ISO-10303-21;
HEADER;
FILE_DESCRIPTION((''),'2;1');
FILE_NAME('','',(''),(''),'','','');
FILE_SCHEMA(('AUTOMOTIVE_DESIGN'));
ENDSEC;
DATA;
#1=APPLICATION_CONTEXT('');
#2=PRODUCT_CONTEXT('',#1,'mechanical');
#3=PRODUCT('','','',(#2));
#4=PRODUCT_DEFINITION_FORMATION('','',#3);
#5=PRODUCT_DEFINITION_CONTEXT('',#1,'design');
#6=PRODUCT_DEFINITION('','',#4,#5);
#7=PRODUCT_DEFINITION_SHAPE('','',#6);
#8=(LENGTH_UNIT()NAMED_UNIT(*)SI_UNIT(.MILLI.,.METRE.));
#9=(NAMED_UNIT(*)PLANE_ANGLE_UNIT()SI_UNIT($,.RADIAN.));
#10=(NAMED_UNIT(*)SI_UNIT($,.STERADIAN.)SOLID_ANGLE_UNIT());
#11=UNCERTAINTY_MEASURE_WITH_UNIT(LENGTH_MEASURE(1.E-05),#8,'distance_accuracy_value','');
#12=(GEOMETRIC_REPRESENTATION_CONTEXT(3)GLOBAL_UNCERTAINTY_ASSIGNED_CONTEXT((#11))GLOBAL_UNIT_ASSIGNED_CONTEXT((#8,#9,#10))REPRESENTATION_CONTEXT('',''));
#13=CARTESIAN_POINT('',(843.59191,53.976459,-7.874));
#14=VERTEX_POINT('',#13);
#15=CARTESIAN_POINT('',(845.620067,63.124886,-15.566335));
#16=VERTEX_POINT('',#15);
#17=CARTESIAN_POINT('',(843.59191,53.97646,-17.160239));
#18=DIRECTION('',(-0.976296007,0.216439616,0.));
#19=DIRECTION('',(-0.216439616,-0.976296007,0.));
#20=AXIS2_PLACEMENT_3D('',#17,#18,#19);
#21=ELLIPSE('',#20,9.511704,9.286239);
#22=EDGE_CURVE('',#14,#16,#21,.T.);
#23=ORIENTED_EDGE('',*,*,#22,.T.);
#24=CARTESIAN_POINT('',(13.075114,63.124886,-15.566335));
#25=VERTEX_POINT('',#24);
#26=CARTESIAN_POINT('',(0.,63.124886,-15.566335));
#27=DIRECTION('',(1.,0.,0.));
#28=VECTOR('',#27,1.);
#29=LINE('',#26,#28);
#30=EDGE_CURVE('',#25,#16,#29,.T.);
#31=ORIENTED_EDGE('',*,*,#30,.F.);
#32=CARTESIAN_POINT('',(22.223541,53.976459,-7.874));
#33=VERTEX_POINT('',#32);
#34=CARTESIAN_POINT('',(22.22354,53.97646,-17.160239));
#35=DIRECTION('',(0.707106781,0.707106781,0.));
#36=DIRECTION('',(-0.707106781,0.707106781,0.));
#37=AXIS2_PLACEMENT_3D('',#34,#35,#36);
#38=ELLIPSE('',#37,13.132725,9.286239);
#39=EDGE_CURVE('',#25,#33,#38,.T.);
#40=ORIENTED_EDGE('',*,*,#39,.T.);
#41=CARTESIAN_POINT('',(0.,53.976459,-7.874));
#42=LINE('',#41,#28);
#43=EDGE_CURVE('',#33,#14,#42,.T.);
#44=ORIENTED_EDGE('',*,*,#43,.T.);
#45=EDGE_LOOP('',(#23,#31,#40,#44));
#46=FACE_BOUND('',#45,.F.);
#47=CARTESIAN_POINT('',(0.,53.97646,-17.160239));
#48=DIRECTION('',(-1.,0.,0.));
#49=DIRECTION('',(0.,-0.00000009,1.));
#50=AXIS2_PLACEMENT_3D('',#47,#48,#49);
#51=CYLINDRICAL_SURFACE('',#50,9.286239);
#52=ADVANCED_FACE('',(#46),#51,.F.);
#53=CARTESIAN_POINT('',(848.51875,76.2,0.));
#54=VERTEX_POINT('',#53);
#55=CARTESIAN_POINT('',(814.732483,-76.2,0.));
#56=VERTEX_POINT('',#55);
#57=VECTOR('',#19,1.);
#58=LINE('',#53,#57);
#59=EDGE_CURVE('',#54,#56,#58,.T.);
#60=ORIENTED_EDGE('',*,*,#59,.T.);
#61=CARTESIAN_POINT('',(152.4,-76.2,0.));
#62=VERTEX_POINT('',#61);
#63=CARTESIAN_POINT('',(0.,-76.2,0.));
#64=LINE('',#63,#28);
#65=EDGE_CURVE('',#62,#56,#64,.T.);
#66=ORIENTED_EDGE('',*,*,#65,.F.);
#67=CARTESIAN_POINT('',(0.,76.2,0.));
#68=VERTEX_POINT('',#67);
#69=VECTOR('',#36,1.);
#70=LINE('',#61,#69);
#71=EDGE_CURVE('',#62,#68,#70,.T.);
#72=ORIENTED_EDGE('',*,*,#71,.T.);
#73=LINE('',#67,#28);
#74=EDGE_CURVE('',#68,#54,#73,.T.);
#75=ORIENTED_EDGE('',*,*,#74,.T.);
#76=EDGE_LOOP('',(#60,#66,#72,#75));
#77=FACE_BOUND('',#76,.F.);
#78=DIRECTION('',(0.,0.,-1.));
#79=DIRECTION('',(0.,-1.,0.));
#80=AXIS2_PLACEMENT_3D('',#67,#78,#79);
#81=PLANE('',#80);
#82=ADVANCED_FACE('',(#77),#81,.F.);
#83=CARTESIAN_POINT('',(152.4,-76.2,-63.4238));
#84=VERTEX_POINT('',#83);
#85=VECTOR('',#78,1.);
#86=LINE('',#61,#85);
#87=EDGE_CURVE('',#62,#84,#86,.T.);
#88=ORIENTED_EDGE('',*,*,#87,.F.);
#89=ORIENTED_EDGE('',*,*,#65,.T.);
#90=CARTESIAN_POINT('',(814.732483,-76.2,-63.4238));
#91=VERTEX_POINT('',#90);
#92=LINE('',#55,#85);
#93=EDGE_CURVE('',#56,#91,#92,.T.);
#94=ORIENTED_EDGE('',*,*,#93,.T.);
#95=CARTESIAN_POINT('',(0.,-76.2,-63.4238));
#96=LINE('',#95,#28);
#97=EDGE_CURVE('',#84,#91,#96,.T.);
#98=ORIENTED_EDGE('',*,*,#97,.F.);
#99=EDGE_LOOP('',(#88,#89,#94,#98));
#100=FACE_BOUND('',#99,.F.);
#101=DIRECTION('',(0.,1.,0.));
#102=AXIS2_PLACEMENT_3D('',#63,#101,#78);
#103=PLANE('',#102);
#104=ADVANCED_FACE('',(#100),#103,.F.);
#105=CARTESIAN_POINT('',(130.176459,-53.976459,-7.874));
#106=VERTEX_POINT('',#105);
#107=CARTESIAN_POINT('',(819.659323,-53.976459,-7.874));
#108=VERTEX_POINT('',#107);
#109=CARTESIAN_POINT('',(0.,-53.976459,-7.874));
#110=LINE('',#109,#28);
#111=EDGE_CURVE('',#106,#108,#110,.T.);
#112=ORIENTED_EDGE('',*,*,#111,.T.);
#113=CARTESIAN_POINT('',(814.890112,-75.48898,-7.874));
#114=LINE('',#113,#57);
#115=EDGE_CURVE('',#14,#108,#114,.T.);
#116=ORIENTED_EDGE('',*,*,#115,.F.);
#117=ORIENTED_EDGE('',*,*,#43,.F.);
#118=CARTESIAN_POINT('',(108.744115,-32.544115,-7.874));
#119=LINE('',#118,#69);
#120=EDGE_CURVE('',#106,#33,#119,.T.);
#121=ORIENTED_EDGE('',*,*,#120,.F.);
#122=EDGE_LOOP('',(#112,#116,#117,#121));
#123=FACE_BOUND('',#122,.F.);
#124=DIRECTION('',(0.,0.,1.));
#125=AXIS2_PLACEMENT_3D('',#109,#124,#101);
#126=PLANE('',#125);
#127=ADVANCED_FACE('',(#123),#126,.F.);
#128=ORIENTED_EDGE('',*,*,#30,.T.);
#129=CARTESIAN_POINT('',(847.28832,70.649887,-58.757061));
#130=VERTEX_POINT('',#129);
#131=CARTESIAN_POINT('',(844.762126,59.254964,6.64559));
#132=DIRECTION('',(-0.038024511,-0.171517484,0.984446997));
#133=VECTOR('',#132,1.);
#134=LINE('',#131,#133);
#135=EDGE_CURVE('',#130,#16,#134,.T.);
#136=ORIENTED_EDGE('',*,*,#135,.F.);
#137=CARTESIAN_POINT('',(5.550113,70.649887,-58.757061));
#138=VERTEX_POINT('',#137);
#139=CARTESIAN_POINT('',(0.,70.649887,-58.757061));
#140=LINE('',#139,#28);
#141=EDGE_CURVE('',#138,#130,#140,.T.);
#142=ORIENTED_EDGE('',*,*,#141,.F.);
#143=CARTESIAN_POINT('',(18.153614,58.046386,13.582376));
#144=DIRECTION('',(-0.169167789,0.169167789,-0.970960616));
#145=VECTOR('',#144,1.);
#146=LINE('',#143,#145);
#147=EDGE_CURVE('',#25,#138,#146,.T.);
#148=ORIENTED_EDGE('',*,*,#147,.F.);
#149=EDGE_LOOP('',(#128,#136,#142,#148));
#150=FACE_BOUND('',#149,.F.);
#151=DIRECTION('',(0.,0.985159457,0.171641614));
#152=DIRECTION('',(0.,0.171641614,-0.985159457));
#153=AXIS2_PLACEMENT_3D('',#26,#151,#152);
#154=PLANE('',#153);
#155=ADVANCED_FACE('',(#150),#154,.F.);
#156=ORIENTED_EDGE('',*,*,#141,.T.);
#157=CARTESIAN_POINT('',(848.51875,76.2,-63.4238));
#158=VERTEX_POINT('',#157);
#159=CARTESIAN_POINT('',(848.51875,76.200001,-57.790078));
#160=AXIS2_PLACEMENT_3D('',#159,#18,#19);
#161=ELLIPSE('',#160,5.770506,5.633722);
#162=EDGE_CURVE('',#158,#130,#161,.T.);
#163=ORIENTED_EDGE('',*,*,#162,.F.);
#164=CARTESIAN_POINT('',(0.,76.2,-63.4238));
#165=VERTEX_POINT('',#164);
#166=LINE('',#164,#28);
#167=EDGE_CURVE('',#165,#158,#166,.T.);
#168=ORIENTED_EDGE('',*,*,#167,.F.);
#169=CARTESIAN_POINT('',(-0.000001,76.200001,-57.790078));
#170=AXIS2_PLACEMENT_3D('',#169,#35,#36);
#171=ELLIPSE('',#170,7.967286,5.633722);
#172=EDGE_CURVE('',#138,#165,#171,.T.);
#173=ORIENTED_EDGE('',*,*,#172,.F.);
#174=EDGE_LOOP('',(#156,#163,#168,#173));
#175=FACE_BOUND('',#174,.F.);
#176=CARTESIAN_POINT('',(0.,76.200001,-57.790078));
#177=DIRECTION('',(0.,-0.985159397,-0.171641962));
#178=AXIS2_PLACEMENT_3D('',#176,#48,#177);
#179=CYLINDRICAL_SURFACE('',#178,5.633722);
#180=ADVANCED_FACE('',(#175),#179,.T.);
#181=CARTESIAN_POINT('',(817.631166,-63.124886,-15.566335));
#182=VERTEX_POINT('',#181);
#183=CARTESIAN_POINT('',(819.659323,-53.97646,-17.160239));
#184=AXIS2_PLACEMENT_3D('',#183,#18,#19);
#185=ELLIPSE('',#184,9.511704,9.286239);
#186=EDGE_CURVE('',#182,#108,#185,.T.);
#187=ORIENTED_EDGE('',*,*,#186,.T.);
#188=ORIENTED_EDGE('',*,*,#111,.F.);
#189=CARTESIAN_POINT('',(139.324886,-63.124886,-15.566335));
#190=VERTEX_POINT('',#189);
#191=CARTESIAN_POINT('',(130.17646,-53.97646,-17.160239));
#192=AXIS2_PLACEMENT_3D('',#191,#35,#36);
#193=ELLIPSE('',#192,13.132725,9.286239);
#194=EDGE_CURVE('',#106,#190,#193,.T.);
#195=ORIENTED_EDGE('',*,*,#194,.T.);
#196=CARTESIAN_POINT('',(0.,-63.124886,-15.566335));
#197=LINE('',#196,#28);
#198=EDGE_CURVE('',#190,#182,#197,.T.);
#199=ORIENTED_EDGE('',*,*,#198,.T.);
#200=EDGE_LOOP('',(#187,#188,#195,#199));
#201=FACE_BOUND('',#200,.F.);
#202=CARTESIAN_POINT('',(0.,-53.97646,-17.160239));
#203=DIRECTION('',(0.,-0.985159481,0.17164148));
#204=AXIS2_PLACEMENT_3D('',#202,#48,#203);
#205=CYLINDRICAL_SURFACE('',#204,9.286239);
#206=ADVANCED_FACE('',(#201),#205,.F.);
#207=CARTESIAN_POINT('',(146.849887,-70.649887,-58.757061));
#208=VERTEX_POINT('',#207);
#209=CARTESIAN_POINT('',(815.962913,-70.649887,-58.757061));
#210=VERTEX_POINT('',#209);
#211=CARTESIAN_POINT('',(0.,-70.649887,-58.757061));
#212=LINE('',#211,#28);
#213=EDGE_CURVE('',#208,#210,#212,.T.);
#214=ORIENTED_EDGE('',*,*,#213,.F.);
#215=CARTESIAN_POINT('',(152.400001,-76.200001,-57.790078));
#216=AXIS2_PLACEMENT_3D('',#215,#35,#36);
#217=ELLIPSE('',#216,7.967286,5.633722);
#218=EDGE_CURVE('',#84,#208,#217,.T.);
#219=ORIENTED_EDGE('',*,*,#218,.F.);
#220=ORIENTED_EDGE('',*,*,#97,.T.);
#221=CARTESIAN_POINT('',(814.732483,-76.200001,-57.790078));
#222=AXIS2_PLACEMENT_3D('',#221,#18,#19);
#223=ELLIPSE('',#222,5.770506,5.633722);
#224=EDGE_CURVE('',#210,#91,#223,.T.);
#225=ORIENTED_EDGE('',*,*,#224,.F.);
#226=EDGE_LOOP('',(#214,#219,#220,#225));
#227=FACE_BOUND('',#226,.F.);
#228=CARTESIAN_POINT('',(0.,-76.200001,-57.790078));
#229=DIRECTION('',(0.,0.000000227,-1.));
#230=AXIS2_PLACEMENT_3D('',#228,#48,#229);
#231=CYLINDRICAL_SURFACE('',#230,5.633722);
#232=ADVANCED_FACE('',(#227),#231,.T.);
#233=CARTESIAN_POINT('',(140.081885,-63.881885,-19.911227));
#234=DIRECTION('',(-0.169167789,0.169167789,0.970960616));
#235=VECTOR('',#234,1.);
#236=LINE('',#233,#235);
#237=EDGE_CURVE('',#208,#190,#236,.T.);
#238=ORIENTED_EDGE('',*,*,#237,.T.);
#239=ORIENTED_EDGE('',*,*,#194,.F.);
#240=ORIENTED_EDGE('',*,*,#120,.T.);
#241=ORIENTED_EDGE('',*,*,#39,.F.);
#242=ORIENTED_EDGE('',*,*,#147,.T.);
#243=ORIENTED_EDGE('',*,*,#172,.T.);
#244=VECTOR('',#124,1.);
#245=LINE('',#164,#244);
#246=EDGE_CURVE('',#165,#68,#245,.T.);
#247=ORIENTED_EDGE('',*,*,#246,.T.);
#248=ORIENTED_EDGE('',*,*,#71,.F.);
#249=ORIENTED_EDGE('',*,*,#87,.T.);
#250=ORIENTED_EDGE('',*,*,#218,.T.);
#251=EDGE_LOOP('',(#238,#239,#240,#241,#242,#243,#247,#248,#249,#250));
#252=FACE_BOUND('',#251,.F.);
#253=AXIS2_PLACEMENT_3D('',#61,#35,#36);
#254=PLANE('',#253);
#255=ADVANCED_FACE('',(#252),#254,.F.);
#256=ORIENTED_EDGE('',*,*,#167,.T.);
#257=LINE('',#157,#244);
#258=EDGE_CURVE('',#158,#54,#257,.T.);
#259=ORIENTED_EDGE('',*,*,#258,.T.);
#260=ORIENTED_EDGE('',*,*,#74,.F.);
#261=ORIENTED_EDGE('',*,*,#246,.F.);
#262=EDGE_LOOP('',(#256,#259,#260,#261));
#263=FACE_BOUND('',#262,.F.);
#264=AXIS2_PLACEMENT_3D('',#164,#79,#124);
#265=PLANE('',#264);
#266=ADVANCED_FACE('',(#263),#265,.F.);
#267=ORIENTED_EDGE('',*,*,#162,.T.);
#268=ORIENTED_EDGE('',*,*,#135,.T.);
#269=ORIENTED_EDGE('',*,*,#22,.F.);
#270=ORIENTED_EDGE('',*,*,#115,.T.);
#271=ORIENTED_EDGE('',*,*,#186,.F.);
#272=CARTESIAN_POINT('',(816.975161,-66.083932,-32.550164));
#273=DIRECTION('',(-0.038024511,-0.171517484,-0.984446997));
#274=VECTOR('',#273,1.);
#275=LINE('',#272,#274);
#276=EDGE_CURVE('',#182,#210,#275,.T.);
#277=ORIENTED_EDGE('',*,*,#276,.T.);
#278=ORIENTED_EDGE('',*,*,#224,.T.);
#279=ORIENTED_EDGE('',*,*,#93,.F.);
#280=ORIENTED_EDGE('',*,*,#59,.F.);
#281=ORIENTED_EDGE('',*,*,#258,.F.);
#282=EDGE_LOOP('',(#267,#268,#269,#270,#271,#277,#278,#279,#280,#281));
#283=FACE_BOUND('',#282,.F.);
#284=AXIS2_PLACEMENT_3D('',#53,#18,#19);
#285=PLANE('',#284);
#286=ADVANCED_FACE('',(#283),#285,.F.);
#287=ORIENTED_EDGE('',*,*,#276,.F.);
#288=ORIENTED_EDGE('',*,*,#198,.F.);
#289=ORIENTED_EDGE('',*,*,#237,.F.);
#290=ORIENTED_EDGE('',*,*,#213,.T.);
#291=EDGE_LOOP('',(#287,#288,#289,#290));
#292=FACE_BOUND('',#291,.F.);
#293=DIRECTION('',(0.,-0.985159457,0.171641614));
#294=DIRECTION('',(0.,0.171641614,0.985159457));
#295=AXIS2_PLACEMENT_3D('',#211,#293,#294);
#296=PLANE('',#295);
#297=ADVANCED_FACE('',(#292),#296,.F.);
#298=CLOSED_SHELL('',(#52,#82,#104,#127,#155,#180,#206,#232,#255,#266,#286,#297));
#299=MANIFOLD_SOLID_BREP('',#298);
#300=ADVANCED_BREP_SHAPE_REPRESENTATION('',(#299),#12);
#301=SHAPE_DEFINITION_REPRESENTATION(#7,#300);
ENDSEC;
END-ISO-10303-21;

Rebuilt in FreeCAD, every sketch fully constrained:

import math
import FreeCAD as App
import Part
import Sketcher

V = App.Vector
Q = App.Units.Quantity


def add_polygon(sketch, points):
    """Adds a closed chain of lines whose ends are joined by coincident constraints."""
    first, n = sketch.GeometryCount, len(points)
    for a, b in zip(points, points[1:] + points[:1]):
        sketch.addGeometry(Part.LineSegment(App.Vector(*a, 0), App.Vector(*b, 0)), False)
    for i in range(n):
        sketch.addConstraint(Sketcher.Constraint("Coincident", first + i, 2, first + (i + 1) % n, 1))

doc = App.newDocument("Part")
params = doc.addObject("Spreadsheet::Sheet", "Params")
for row, (alias, value) in enumerate([
    ("sketch1_width", "6 in"),
    ("sketch1_height", "2.497 in"),
    ("pad1_length", "33.40625 in"),
    ("sketch2_width", "6 in"),
], start=1):
    params.set(f"A{row}", alias)
    params.set(f"B{row}", "=" + value)
    params.setAlias(f"B{row}", alias)

body = doc.addObject("PartDesign::Body", "Body")

# Sketch on YZ plane
sketch1 = body.newObject("Sketcher::SketchObject", "Sketch")
sketch1.AttachmentSupport = (doc.getObject("YZ_Plane"), [""])
sketch1.MapMode = "FlatFace"
sketch1.addGeometry(Part.LineSegment(V(76.2, 0, 0), V(-76.2, 0, 0)), False)
sketch1.addGeometry(Part.LineSegment(V(-76.2, 0, 0), V(-76.2, -63.4238, 0)), False)
sketch1.addGeometry(Part.ArcOfCircle(Part.Circle(V(-76.200001, -57.790078, 0), V(0, 0, 1), 5.633722), math.radians(-89.999987), math.radians(-9.8833)), False)
sketch1.addGeometry(Part.LineSegment(V(-70.649887, -58.757061, 0), V(-63.124886, -15.566335, 0)), False)
sketch1.addGeometry(Part.ArcOfCircle(Part.Circle(V(-53.97646, -17.160239, 0), V(0, 0, 1), 9.286239), math.radians(89.999995), math.radians(170.116728)), False)
sketch1.addGeometry(Part.LineSegment(V(-53.976459, -7.874, 0), V(53.976459, -7.874, 0)), False)
sketch1.addGeometry(Part.ArcOfCircle(Part.Circle(V(53.97646, -17.160239, 0), V(0, 0, 1), 9.286239), math.radians(9.883272), math.radians(90.000005)), False)
sketch1.addGeometry(Part.LineSegment(V(63.124886, -15.566335, 0), V(70.649887, -58.757061, 0)), False)
sketch1.addGeometry(Part.ArcOfCircle(Part.Circle(V(76.200001, -57.790078, 0), V(0, 0, 1), 5.633722), math.radians(-170.1167), math.radians(-90.000013)), False)
sketch1.addGeometry(Part.LineSegment(V(76.2, -63.4238, 0), V(76.2, 0, 0)), False)
sketch1.addConstraint(Sketcher.Constraint("Coincident", 0, 2, 1, 1))
sketch1.addConstraint(Sketcher.Constraint("Coincident", 1, 2, 2, 1))
sketch1.addConstraint(Sketcher.Constraint("Tangent", 2, 2, 3, 1))
sketch1.addConstraint(Sketcher.Constraint("Tangent", 3, 2, 4, 2))
sketch1.addConstraint(Sketcher.Constraint("Tangent", 4, 1, 5, 1))
sketch1.addConstraint(Sketcher.Constraint("Tangent", 5, 2, 6, 2))
sketch1.addConstraint(Sketcher.Constraint("Tangent", 6, 1, 7, 1))
sketch1.addConstraint(Sketcher.Constraint("Tangent", 7, 2, 8, 1))
sketch1.addConstraint(Sketcher.Constraint("Coincident", 8, 2, 9, 1))
sketch1.addConstraint(Sketcher.Constraint("Coincident", 9, 2, 0, 1))
sketch1.addConstraint(Sketcher.Constraint("Horizontal", 0))
sketch1.addConstraint(Sketcher.Constraint("Vertical", 1))
sketch1.addConstraint(Sketcher.Constraint("Horizontal", 5))
sketch1.addConstraint(Sketcher.Constraint("Vertical", 9))
sketch1.addConstraint(Sketcher.Constraint("Equal", 4, 6))
sketch1.addConstraint(Sketcher.Constraint("Equal", 2, 8))
sketch1.addConstraint(Sketcher.Constraint("Symmetric", 0, 2, 9, 2, -1, 1))
sketch1.addConstraint(Sketcher.Constraint("Symmetric", 2, 3, 8, 3, -2))
sketch1.addConstraint(Sketcher.Constraint("Horizontal", 3, 2, 6, 1))
sketch1.addConstraint(Sketcher.Constraint("Vertical", 2, 3, 0, 2))
sketch1.addConstraint(Sketcher.Constraint("DistanceX", 0, 2, 0, 1, Q("6 in")))
sketch1.addConstraint(Sketcher.Constraint("Radius", 2, Q("0.2218001 in")))
sketch1.addConstraint(Sketcher.Constraint("Radius", 4, Q("0.3656 in")))
sketch1.addConstraint(Sketcher.Constraint("DistanceY", 1, 2, 1, 1, Q("2.497 in")))
sketch1.addConstraint(Sketcher.Constraint("DistanceY", 4, 1, -1, 1, Q("0.31 in")))
sketch1.addConstraint(Sketcher.Constraint("DistanceX", 2, 2, 3, 2, Q("7.525001 mm")))
sketch1.setExpression("Constraints[20]", "Params.sketch1_width")
sketch1.setExpression("Constraints[23]", "Params.sketch1_height")
pad1 = body.newObject("PartDesign::Pad", "Pad")
pad1.Profile = sketch1
pad1.setExpression("Length", "Params.pad1_length")

# Sketch on XY plane
sketch2 = body.newObject("Sketcher::SketchObject", "Sketch001")
sketch2.AttachmentSupport = (doc.getObject("XY_Plane"), [""])
sketch2.MapMode = "FlatFace"
add_polygon(sketch2, [(152.4, -76.2), (0, 76.2), (0, -76.2)])  # lines 0-2
add_polygon(sketch2, [(848.51875, -76.2), (848.51875, 76.2), (814.732483, -76.2)])  # lines 3-5
sketch2.addConstraint(Sketcher.Constraint("Vertical", 1))
sketch2.addConstraint(Sketcher.Constraint("Horizontal", 2))
sketch2.addConstraint(Sketcher.Constraint("Vertical", 3))
sketch2.addConstraint(Sketcher.Constraint("Horizontal", 5))
sketch2.addConstraint(Sketcher.Constraint("Symmetric", 0, 2, 1, 2, -1, 1))
sketch2.addConstraint(Sketcher.Constraint("Horizontal", 0, 2, 3, 2))
sketch2.addConstraint(Sketcher.Constraint("Horizontal", 2, 2, 4, 2))
sketch2.addConstraint(Sketcher.Constraint("Equal", 2, 1))
sketch2.addConstraint(Sketcher.Constraint("DistanceX", 2, 1, 2, 2, Q("6 in")))
sketch2.addConstraint(Sketcher.Constraint("Angle", 4, Q("-102.5 deg")))
sketch2.addConstraint(Sketcher.Constraint("DistanceX", -1, 1, 3, 2, Q("33.40625 in")))
sketch2.setExpression("Constraints[14]", "Params.sketch2_width")
pocket1 = body.newObject("PartDesign::Pocket", "Pocket")
pocket1.Profile = sketch2
pocket1.Type = "ThroughAll"

doc.recompute()
